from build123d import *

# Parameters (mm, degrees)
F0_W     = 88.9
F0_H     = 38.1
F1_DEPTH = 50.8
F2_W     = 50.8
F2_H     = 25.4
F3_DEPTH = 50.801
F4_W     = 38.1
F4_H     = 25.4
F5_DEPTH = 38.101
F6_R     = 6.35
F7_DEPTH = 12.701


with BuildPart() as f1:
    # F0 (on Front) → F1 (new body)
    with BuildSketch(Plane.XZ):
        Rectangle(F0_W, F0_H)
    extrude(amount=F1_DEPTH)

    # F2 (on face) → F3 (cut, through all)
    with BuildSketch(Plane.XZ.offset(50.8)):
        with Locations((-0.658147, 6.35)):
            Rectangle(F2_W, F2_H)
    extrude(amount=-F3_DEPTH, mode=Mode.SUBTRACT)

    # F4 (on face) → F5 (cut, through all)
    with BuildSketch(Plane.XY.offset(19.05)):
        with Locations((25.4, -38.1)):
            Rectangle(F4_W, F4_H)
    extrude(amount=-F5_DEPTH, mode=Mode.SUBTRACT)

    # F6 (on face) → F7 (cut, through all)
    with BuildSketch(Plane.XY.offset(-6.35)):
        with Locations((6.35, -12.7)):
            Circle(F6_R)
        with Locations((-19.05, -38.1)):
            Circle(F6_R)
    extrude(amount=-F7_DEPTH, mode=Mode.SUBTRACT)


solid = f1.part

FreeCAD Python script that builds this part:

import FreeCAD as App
import Part
import Sketcher
Q = App.Units.Quantity

doc = App.newDocument("Part")
body = doc.addObject("PartDesign::Body", "Body")

# Sketch on XZ plane
sketch1 = doc.addObject("Sketcher::SketchObject", "Sketch")
body.addObject(sketch1)
sketch1.AttachmentSupport = (doc.XZ_Plane, [""])
sketch1.MapMode = "FlatFace"
sketch1.addGeometry(Part.LineSegment(App.Vector(-44, 19, 0), App.Vector(-44, -19, 0)), False)
sketch1.addGeometry(Part.LineSegment(App.Vector(-44, -19, 0), App.Vector(44, -19, 0)), False)
sketch1.addGeometry(Part.LineSegment(App.Vector(44, -19, 0), App.Vector(44, 19, 0)), False)
sketch1.addGeometry(Part.LineSegment(App.Vector(44, 19, 0), App.Vector(-44, 19, 0)), False)
sketch1.addConstraint(Sketcher.Constraint("Coincident", 0, 2, 1, 1))
sketch1.addConstraint(Sketcher.Constraint("Coincident", 1, 2, 2, 1))
sketch1.addConstraint(Sketcher.Constraint("Coincident", 2, 2, 3, 1))
sketch1.addConstraint(Sketcher.Constraint("Coincident", 3, 2, 0, 1))
sketch1.addConstraint(Sketcher.Constraint("Vertical", 0))
sketch1.addConstraint(Sketcher.Constraint("Horizontal", 1))
sketch1.addConstraint(Sketcher.Constraint("Vertical", 2))
sketch1.addConstraint(Sketcher.Constraint("Horizontal", 3))
sketch1.addConstraint(Sketcher.Constraint("Symmetric", 0, 2, 2, 2, -1, 1))
sketch1.addConstraint(Sketcher.Constraint("DistanceX", 1, 1, 1, 2, Q("3.5 in")))
sketch1.addConstraint(Sketcher.Constraint("DistanceY", 0, 2, 0, 1, Q("1.5 in")))
pad1 = doc.addObject("PartDesign::Pad", "Pad")
body.addObject(pad1)
pad1.Profile = sketch1
pad1.Length = Q("2 in")

# Sketch on XZ plane
sketch2 = doc.addObject("Sketcher::SketchObject", "Sketch001")
body.addObject(sketch2)
sketch2.AttachmentSupport = (doc.XZ_Plane, [""])
sketch2.MapMode = "FlatFace"
sketch2.AttachmentOffset = App.Placement(App.Vector(0, 0, 2 * 25.4), App.Rotation())
sketch2.addGeometry(Part.LineSegment(App.Vector(-26, 19, 0), App.Vector(-26, -6, 0)), False)
sketch2.addGeometry(Part.LineSegment(App.Vector(-26, -6, 0), App.Vector(25, -6, 0)), False)
sketch2.addGeometry(Part.LineSegment(App.Vector(25, -6, 0), App.Vector(25, 19, 0)), False)
sketch2.addGeometry(Part.LineSegment(App.Vector(25, 19, 0), App.Vector(-26, 19, 0)), False)
sketch2.addConstraint(Sketcher.Constraint("Coincident", 0, 2, 1, 1))
sketch2.addConstraint(Sketcher.Constraint("Coincident", 1, 2, 2, 1))
sketch2.addConstraint(Sketcher.Constraint("Coincident", 2, 2, 3, 1))
sketch2.addConstraint(Sketcher.Constraint("Coincident", 3, 2, 0, 1))
sketch2.addConstraint(Sketcher.Constraint("Vertical", 0))
sketch2.addConstraint(Sketcher.Constraint("Horizontal", 1))
sketch2.addConstraint(Sketcher.Constraint("Vertical", 2))
sketch2.addConstraint(Sketcher.Constraint("Horizontal", 3))
sketch2.addConstraint(Sketcher.Constraint("DistanceX", 1, 1, 1, 2, Q("2 in")))
sketch2.addConstraint(Sketcher.Constraint("DistanceY", 0, 2, 0, 1, Q("1 in")))
sketch2.addConstraint(Sketcher.Constraint("DistanceY", 0, 2, -1, 1, Q("0.25 in")))
sketch2.addConstraint(Sketcher.Constraint("DistanceX", 0, 2, -1, 1, Q("26.058147 mm")))
pocket1 = doc.addObject("PartDesign::Pocket", "Pocket")
body.addObject(pocket1)
pocket1.Profile = sketch2
pocket1.Type = "ThroughAll"

# Sketch on XY plane
sketch3 = doc.addObject("Sketcher::SketchObject", "Sketch002")
body.addObject(sketch3)
sketch3.AttachmentSupport = (doc.XY_Plane, [""])
sketch3.MapMode = "FlatFace"
sketch3.AttachmentOffset = App.Placement(App.Vector(0, 0, 0.75 * 25.4), App.Rotation())
sketch3.addGeometry(Part.LineSegment(App.Vector(6, -25, 0), App.Vector(6, -51, 0)), False)
sketch3.addGeometry(Part.LineSegment(App.Vector(6, -51, 0), App.Vector(44, -51, 0)), False)
sketch3.addGeometry(Part.LineSegment(App.Vector(44, -51, 0), App.Vector(44, -25, 0)), False)
sketch3.addGeometry(Part.LineSegment(App.Vector(44, -25, 0), App.Vector(6, -25, 0)), False)
sketch3.addConstraint(Sketcher.Constraint("Coincident", 0, 2, 1, 1))
sketch3.addConstraint(Sketcher.Constraint("Coincident", 1, 2, 2, 1))
sketch3.addConstraint(Sketcher.Constraint("Coincident", 2, 2, 3, 1))
sketch3.addConstraint(Sketcher.Constraint("Coincident", 3, 2, 0, 1))
sketch3.addConstraint(Sketcher.Constraint("Vertical", 0))
sketch3.addConstraint(Sketcher.Constraint("Horizontal", 1))
sketch3.addConstraint(Sketcher.Constraint("Vertical", 2))
sketch3.addConstraint(Sketcher.Constraint("Horizontal", 3))
sketch3.addConstraint(Sketcher.Constraint("DistanceY", 0, 2, 0, 1, Q("1 in")))
sketch3.addConstraint(Sketcher.Constraint("DistanceX", 1, 1, 1, 2, Q("1.5 in")))
sketch3.addConstraint(Sketcher.Constraint("DistanceY", 0, 2, -1, 1, Q("2 in")))
sketch3.addConstraint(Sketcher.Constraint("DistanceX", -1, 1, 0, 2, Q("0.25 in")))
pocket2 = doc.addObject("PartDesign::Pocket", "Pocket001")
body.addObject(pocket2)
pocket2.Profile = sketch3
pocket2.Type = "ThroughAll"

# Sketch on XY plane
sketch4 = doc.addObject("Sketcher::SketchObject", "Sketch003")
body.addObject(sketch4)
sketch4.AttachmentSupport = (doc.XY_Plane, [""])
sketch4.MapMode = "FlatFace"
sketch4.AttachmentOffset = App.Placement(App.Vector(0, 0, -0.25 * 25.4), App.Rotation())
sketch4.addGeometry(Part.Circle(App.Vector(6, -13, 0), App.Vector(0, 0, 1), 6), False)
sketch4.addGeometry(Part.Circle(App.Vector(-19, -38, 0), App.Vector(0, 0, 1), 6), False)
sketch4.addConstraint(Sketcher.Constraint("Equal", 0, 1))
sketch4.addConstraint(Sketcher.Constraint("Diameter", 0, Q("0.5 in")))
sketch4.addConstraint(Sketcher.Constraint("DistanceX", 1, 3, 0, 3, Q("1 in")))
sketch4.addConstraint(Sketcher.Constraint("DistanceY", 1, 3, 0, 3, Q("1 in")))
sketch4.addConstraint(Sketcher.Constraint("DistanceY", 0, 3, -1, 1, Q("0.5 in")))
sketch4.addConstraint(Sketcher.Constraint("DistanceX", -1, 1, 0, 3, Q("0.25 in")))
pocket3 = doc.addObject("PartDesign::Pocket", "Pocket002")
body.addObject(pocket3)
pocket3.Profile = sketch4
pocket3.Type = "ThroughAll"

doc.recompute()
